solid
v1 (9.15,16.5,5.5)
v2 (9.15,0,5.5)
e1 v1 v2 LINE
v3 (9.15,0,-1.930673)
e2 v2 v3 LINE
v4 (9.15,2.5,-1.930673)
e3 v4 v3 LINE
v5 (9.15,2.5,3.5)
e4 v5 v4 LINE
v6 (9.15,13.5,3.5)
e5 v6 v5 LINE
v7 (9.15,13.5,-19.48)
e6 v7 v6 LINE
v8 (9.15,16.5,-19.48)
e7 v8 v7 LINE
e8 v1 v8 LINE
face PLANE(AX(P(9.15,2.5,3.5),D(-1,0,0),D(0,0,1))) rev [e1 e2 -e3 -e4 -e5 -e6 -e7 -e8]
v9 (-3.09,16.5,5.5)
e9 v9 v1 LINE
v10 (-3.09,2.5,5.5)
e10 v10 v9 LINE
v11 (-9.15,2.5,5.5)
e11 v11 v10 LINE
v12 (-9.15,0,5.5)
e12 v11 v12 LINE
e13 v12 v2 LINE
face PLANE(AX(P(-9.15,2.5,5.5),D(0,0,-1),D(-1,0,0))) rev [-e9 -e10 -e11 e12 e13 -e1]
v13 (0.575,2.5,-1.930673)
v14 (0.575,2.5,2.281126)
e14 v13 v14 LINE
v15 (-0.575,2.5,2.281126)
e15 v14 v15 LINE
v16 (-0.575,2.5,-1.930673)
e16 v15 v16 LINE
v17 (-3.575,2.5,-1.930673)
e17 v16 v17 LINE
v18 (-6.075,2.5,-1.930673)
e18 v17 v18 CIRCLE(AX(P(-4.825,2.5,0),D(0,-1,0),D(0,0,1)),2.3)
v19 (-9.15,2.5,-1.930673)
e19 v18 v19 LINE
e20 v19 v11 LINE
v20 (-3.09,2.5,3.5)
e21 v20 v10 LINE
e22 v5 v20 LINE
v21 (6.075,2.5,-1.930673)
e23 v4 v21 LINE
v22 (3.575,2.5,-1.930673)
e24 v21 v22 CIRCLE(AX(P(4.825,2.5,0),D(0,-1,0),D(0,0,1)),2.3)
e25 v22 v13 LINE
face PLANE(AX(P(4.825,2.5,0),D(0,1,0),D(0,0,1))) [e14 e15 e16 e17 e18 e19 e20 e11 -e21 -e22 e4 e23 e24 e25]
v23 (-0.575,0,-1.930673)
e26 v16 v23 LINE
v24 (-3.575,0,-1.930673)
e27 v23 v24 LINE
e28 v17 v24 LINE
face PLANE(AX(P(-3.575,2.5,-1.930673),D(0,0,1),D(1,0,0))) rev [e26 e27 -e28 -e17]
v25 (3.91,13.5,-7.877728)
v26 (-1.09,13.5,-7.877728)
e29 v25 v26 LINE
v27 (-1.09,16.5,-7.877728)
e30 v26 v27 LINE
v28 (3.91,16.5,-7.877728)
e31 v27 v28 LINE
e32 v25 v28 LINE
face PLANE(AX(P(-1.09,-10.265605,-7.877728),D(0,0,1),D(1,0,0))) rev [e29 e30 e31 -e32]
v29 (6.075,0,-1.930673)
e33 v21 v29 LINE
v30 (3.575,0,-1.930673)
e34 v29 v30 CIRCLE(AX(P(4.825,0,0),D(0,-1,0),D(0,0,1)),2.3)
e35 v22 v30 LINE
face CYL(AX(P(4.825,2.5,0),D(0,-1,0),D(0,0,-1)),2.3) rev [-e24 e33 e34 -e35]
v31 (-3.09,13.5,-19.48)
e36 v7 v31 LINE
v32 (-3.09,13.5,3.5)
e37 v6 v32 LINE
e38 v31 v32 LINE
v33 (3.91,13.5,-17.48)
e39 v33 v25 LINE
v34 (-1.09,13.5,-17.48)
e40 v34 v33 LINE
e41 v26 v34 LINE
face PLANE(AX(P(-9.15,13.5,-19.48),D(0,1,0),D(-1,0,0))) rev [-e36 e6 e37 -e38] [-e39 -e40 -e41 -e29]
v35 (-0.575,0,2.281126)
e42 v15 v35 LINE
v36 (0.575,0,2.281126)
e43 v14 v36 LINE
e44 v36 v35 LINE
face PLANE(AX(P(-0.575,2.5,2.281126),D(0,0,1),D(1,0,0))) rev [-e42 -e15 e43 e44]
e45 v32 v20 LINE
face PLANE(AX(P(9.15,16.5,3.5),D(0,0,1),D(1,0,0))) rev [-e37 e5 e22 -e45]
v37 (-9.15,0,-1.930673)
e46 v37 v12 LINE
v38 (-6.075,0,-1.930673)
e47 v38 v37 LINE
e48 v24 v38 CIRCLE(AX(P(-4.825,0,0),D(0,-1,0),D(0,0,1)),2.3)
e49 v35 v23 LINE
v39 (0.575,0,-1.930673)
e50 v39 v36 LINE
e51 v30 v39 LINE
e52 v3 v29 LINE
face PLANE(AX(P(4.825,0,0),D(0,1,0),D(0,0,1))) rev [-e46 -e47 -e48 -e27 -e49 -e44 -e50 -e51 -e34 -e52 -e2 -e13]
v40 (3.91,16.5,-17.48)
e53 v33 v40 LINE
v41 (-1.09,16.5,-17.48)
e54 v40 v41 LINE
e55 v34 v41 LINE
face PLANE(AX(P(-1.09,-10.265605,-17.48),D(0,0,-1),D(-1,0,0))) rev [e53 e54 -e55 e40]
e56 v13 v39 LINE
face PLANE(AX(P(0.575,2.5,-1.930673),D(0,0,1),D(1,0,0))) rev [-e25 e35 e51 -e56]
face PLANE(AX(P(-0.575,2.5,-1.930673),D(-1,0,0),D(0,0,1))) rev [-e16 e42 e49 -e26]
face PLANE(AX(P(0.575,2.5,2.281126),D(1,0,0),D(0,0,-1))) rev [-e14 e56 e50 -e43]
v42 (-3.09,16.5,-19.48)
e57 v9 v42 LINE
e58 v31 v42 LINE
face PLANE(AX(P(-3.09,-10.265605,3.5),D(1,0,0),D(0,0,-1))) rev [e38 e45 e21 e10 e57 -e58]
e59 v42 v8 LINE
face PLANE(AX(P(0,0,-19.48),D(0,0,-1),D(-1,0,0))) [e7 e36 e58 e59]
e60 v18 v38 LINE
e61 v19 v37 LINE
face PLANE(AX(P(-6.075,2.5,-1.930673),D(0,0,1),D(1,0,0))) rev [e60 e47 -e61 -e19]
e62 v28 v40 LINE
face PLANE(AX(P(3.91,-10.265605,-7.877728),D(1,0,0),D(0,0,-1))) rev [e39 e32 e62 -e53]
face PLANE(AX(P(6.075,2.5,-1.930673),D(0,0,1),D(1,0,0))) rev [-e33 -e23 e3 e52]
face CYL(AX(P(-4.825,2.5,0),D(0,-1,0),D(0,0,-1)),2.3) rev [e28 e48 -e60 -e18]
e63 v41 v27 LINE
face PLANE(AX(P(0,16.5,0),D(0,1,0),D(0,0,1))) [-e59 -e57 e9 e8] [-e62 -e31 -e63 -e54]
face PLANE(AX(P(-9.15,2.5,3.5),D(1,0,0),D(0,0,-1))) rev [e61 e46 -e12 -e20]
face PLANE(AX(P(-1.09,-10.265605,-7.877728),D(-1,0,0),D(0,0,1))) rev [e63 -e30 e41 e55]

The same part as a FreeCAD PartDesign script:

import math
import FreeCAD as App
import Part
import Sketcher
from FreeCAD import Vector


def add_polygon(sketch, points):
    """Adds a closed chain of lines whose ends are joined by coincident constraints."""
    first, n = sketch.GeometryCount, len(points)
    for a, b in zip(points, points[1:] + points[:1]):
        sketch.addGeometry(Part.LineSegment(App.Vector(*a, 0), App.Vector(*b, 0)), False)
    for i in range(n):
        sketch.addConstraint(Sketcher.Constraint("Coincident", first + i, 2, first + (i + 1) % n, 1))

doc = App.newDocument("Part")
body = doc.addObject("PartDesign::Body", "Body")

# Sketch on XZ plane
sketch1 = body.newObject("Sketcher::SketchObject", "Sketch")
sketch1.AttachmentSupport = (doc.getObject("XZ_Plane"), [""])
sketch1.MapMode = "FlatFace"
sketch1.addGeometry([
    Part.LineSegment(Vector(-6.075, -1.930673, 0), Vector(-9.15, -1.930673, 0)),  # 0
    Part.LineSegment(Vector(-9.15, -1.930673, 0), Vector(-9.15, 5.5, 0)),  # 1
    Part.LineSegment(Vector(-9.15, 5.5, 0), Vector(9.15, 5.5, 0)),  # 2
    Part.LineSegment(Vector(9.15, 5.5, 0), Vector(9.15, -1.930673, 0)),  # 3
    Part.LineSegment(Vector(9.15, -1.930673, 0), Vector(6.075, -1.930673, 0)),  # 4
    Part.ArcOfCircle(Part.Circle(Vector(4.825, 0, 0), Vector(0, 0, 1), 2.3), math.radians(-57.079265), math.radians(237.079265)),  # 5
    Part.LineSegment(Vector(3.575, -1.930673, 0), Vector(0.575, -1.930673, 0)),  # 6
    Part.LineSegment(Vector(0.575, -1.930673, 0), Vector(0.575, 2.281126, 0)),  # 7
    Part.LineSegment(Vector(0.575, 2.281126, 0), Vector(-0.575, 2.281126, 0)),  # 8
    Part.LineSegment(Vector(-0.575, 2.281126, 0), Vector(-0.575, -1.930673, 0)),  # 9
    Part.LineSegment(Vector(-0.575, -1.930673, 0), Vector(-3.575, -1.930673, 0)),  # 10
    Part.ArcOfCircle(Part.Circle(Vector(-4.825, 0, 0), Vector(0, 0, 1), 2.3), math.radians(-57.079265), math.radians(237.079265)),  # 11
], False)
sketch1.addConstraint([
    Sketcher.Constraint("Coincident", 0, 2, 1, 1),
    Sketcher.Constraint("Coincident", 1, 2, 2, 1),
    Sketcher.Constraint("Coincident", 2, 2, 3, 1),
    Sketcher.Constraint("Coincident", 3, 2, 4, 1),
    Sketcher.Constraint("Coincident", 4, 2, 5, 1),
    Sketcher.Constraint("Coincident", 5, 2, 6, 1),
    Sketcher.Constraint("Coincident", 6, 2, 7, 1),
    Sketcher.Constraint("Coincident", 7, 2, 8, 1),
    Sketcher.Constraint("Coincident", 8, 2, 9, 1),
    Sketcher.Constraint("Coincident", 9, 2, 10, 1),
    Sketcher.Constraint("Coincident", 10, 2, 11, 1),
    Sketcher.Constraint("Coincident", 11, 2, 0, 1),
    Sketcher.Constraint("Horizontal", 0),
    Sketcher.Constraint("Vertical", 1),
    Sketcher.Constraint("Horizontal", 2),
    Sketcher.Constraint("Vertical", 3),
    Sketcher.Constraint("Horizontal", 4),
    Sketcher.Constraint("Horizontal", 6),
    Sketcher.Constraint("Vertical", 7),
    Sketcher.Constraint("Horizontal", 8),
    Sketcher.Constraint("Vertical", 9),
    Sketcher.Constraint("Horizontal", 10),
    Sketcher.Constraint("Equal", 5, 11),
    Sketcher.Constraint("Symmetric", 5, 3, 11, 3, -1, 1),
    Sketcher.Constraint("Symmetric", 0, 2, 3, 2, -2),
    Sketcher.Constraint("Symmetric", 6, 2, 9, 2, -2),
    Sketcher.Constraint("PointOnObject", 5, 3, -1),
    Sketcher.Constraint("Horizontal", 4, 2, 5, 2),
    Sketcher.Constraint("Radius", 5, 2.3),
    Sketcher.Constraint("DistanceX", 6, 2, 6, 1, 3.0),
    Sketcher.Constraint("DistanceX", 2, 1, 2, 2, 18.3),
    Sketcher.Constraint("DistanceX", 8, 2, 8, 1, 1.15),
    Sketcher.Constraint("DistanceY", -1, 1, 1, 2, 5.5),
    Sketcher.Constraint("DistanceX", 11, 3, 4, 2, 10.9),
    Sketcher.Constraint("DistanceY", 7, 1, 7, 2, 4.2118),
])
pad1 = body.newObject("PartDesign::Pad", "Pad")
pad1.Profile = sketch1
pad1.Length = 2.5
pad1.Reversed = True

# Sketch on XZ plane
sketch2 = body.newObject("Sketcher::SketchObject", "Sketch001")
sketch2.AttachmentSupport = (doc.getObject("XZ_Plane"), [""])
sketch2.MapMode = "FlatFace"
sketch2.AttachmentOffset = App.Placement(Vector(0, 0, -2.5), App.Rotation())
add_polygon(sketch2, [(-9.15, 3.5), (-9.15, 5.5), (9.15, 5.5), (9.15, 3.5)])  # lines 0-3
sketch2.addConstraint([
    Sketcher.Constraint("Vertical", 0),
    Sketcher.Constraint("Horizontal", 1),
    Sketcher.Constraint("Vertical", 2),
    Sketcher.Constraint("Horizontal", 3),
    Sketcher.Constraint("DistanceY", 0, 1, 0, 2, 2.0),
    Sketcher.Constraint("DistanceX", 1, 1, 1, 2, 18.3),
    Sketcher.Constraint("DistanceY", -1, 1, 0, 2, 5.5),
    Sketcher.Constraint("DistanceX", 0, 2, -1, 1, 9.15),
])
pad2 = body.newObject("PartDesign::Pad", "Pad001")
pad2.Profile = sketch2
pad2.Length = 14
pad2.Reversed = True

# Sketch on XY plane
sketch3 = body.newObject("Sketcher::SketchObject", "Sketch002")
sketch3.AttachmentSupport = (doc.getObject("XY_Plane"), [""])
sketch3.MapMode = "FlatFace"
sketch3.AttachmentOffset = App.Placement(Vector(0, 0, 3.5), App.Rotation())
add_polygon(sketch3, [(9.15, 16.5), (9.15, 13.5), (-9.15, 13.5), (-9.15, 16.5)])  # lines 0-3
sketch3.addConstraint([
    Sketcher.Constraint("Vertical", 0),
    Sketcher.Constraint("Horizontal", 1),
    Sketcher.Constraint("Vertical", 2),
    Sketcher.Constraint("Horizontal", 3),
    Sketcher.Constraint("DistanceY", 0, 2, 0, 1, 3.0),
    Sketcher.Constraint("DistanceX", 1, 2, 1, 1, 18.3),
    Sketcher.Constraint("DistanceY", -1, 1, 0, 2, 13.5),
    Sketcher.Constraint("DistanceX", -1, 1, 0, 2, 9.15),
])
pad3 = body.newObject("PartDesign::Pad", "Pad002")
pad3.Profile = sketch3
pad3.Length = 22.98
pad3.Reversed = True

# Sketch on XZ plane
sketch4 = body.newObject("Sketcher::SketchObject", "Sketch003")
sketch4.AttachmentSupport = (doc.getObject("XZ_Plane"), [""])
sketch4.MapMode = "FlatFace"
sketch4.AttachmentOffset = App.Placement(Vector(0, 0, -16.5), App.Rotation())
add_polygon(sketch4, [(-1.09, -17.48), (-1.09, -7.877728), (3.91, -7.877728), (3.91, -17.48)])  # lines 0-3
add_polygon(sketch4, [(-9.15, -19.48), (-9.15, 3.5), (-3.09, 3.5), (-3.09, -19.48)])  # lines 4-7
sketch4.addConstraint([
    Sketcher.Constraint("Vertical", 0),
    Sketcher.Constraint("Horizontal", 1),
    Sketcher.Constraint("Vertical", 2),
    Sketcher.Constraint("Horizontal", 3),
    Sketcher.Constraint("Vertical", 4),
    Sketcher.Constraint("Horizontal", 5),
    Sketcher.Constraint("Vertical", 6),
    Sketcher.Constraint("Horizontal", 7),
    Sketcher.Constraint("DistanceX", 1, 1, 1, 2, 5.0),
    Sketcher.Constraint("DistanceX", 5, 2, 0, 2, 2.0),
    Sketcher.Constraint("DistanceY", 6, 2, 3, 2, 2.0),
    Sketcher.Constraint("DistanceX", 5, 1, 5, 2, 6.06),
    Sketcher.Constraint("DistanceY", 4, 1, 4, 2, 22.98),
    Sketcher.Constraint("DistanceY", -1, 1, 4, 2, 3.5),
    Sketcher.Constraint("DistanceX", 0, 2, -1, 1, 1.09),
    Sketcher.Constraint("DistanceY", 0, 1, 0, 2, 9.602272),
])
pocket1 = body.newObject("PartDesign::Pocket", "Pocket")
pocket1.Profile = sketch4
pocket1.Length = 3
pocket1.Reversed = True

# Sketch on XY plane
sketch5 = body.newObject("Sketcher::SketchObject", "Sketch004")
sketch5.AttachmentSupport = (doc.getObject("XY_Plane"), [""])
sketch5.MapMode = "FlatFace"
sketch5.AttachmentOffset = App.Placement(Vector(0, 0, 5.5), App.Rotation())
add_polygon(sketch5, [(-9.15, 16.5), (-9.15, 2.5), (-3.09, 2.5), (-3.09, 16.5)])  # lines 0-3
sketch5.addConstraint([
    Sketcher.Constraint("Vertical", 0),
    Sketcher.Constraint("Horizontal", 1),
    Sketcher.Constraint("Vertical", 2),
    Sketcher.Constraint("Horizontal", 3),
    Sketcher.Constraint("DistanceY", 0, 2, 0, 1, 14.0),
    Sketcher.Constraint("DistanceX", 1, 1, 1, 2, 6.06),
    Sketcher.Constraint("DistanceY", -1, 1, 0, 2, 2.5),
    Sketcher.Constraint("DistanceX", 0, 2, -1, 1, 9.15),
])
pocket2 = body.newObject("PartDesign::Pocket", "Pocket001")
pocket2.Profile = sketch5
pocket2.Length = 2

doc.recompute()
